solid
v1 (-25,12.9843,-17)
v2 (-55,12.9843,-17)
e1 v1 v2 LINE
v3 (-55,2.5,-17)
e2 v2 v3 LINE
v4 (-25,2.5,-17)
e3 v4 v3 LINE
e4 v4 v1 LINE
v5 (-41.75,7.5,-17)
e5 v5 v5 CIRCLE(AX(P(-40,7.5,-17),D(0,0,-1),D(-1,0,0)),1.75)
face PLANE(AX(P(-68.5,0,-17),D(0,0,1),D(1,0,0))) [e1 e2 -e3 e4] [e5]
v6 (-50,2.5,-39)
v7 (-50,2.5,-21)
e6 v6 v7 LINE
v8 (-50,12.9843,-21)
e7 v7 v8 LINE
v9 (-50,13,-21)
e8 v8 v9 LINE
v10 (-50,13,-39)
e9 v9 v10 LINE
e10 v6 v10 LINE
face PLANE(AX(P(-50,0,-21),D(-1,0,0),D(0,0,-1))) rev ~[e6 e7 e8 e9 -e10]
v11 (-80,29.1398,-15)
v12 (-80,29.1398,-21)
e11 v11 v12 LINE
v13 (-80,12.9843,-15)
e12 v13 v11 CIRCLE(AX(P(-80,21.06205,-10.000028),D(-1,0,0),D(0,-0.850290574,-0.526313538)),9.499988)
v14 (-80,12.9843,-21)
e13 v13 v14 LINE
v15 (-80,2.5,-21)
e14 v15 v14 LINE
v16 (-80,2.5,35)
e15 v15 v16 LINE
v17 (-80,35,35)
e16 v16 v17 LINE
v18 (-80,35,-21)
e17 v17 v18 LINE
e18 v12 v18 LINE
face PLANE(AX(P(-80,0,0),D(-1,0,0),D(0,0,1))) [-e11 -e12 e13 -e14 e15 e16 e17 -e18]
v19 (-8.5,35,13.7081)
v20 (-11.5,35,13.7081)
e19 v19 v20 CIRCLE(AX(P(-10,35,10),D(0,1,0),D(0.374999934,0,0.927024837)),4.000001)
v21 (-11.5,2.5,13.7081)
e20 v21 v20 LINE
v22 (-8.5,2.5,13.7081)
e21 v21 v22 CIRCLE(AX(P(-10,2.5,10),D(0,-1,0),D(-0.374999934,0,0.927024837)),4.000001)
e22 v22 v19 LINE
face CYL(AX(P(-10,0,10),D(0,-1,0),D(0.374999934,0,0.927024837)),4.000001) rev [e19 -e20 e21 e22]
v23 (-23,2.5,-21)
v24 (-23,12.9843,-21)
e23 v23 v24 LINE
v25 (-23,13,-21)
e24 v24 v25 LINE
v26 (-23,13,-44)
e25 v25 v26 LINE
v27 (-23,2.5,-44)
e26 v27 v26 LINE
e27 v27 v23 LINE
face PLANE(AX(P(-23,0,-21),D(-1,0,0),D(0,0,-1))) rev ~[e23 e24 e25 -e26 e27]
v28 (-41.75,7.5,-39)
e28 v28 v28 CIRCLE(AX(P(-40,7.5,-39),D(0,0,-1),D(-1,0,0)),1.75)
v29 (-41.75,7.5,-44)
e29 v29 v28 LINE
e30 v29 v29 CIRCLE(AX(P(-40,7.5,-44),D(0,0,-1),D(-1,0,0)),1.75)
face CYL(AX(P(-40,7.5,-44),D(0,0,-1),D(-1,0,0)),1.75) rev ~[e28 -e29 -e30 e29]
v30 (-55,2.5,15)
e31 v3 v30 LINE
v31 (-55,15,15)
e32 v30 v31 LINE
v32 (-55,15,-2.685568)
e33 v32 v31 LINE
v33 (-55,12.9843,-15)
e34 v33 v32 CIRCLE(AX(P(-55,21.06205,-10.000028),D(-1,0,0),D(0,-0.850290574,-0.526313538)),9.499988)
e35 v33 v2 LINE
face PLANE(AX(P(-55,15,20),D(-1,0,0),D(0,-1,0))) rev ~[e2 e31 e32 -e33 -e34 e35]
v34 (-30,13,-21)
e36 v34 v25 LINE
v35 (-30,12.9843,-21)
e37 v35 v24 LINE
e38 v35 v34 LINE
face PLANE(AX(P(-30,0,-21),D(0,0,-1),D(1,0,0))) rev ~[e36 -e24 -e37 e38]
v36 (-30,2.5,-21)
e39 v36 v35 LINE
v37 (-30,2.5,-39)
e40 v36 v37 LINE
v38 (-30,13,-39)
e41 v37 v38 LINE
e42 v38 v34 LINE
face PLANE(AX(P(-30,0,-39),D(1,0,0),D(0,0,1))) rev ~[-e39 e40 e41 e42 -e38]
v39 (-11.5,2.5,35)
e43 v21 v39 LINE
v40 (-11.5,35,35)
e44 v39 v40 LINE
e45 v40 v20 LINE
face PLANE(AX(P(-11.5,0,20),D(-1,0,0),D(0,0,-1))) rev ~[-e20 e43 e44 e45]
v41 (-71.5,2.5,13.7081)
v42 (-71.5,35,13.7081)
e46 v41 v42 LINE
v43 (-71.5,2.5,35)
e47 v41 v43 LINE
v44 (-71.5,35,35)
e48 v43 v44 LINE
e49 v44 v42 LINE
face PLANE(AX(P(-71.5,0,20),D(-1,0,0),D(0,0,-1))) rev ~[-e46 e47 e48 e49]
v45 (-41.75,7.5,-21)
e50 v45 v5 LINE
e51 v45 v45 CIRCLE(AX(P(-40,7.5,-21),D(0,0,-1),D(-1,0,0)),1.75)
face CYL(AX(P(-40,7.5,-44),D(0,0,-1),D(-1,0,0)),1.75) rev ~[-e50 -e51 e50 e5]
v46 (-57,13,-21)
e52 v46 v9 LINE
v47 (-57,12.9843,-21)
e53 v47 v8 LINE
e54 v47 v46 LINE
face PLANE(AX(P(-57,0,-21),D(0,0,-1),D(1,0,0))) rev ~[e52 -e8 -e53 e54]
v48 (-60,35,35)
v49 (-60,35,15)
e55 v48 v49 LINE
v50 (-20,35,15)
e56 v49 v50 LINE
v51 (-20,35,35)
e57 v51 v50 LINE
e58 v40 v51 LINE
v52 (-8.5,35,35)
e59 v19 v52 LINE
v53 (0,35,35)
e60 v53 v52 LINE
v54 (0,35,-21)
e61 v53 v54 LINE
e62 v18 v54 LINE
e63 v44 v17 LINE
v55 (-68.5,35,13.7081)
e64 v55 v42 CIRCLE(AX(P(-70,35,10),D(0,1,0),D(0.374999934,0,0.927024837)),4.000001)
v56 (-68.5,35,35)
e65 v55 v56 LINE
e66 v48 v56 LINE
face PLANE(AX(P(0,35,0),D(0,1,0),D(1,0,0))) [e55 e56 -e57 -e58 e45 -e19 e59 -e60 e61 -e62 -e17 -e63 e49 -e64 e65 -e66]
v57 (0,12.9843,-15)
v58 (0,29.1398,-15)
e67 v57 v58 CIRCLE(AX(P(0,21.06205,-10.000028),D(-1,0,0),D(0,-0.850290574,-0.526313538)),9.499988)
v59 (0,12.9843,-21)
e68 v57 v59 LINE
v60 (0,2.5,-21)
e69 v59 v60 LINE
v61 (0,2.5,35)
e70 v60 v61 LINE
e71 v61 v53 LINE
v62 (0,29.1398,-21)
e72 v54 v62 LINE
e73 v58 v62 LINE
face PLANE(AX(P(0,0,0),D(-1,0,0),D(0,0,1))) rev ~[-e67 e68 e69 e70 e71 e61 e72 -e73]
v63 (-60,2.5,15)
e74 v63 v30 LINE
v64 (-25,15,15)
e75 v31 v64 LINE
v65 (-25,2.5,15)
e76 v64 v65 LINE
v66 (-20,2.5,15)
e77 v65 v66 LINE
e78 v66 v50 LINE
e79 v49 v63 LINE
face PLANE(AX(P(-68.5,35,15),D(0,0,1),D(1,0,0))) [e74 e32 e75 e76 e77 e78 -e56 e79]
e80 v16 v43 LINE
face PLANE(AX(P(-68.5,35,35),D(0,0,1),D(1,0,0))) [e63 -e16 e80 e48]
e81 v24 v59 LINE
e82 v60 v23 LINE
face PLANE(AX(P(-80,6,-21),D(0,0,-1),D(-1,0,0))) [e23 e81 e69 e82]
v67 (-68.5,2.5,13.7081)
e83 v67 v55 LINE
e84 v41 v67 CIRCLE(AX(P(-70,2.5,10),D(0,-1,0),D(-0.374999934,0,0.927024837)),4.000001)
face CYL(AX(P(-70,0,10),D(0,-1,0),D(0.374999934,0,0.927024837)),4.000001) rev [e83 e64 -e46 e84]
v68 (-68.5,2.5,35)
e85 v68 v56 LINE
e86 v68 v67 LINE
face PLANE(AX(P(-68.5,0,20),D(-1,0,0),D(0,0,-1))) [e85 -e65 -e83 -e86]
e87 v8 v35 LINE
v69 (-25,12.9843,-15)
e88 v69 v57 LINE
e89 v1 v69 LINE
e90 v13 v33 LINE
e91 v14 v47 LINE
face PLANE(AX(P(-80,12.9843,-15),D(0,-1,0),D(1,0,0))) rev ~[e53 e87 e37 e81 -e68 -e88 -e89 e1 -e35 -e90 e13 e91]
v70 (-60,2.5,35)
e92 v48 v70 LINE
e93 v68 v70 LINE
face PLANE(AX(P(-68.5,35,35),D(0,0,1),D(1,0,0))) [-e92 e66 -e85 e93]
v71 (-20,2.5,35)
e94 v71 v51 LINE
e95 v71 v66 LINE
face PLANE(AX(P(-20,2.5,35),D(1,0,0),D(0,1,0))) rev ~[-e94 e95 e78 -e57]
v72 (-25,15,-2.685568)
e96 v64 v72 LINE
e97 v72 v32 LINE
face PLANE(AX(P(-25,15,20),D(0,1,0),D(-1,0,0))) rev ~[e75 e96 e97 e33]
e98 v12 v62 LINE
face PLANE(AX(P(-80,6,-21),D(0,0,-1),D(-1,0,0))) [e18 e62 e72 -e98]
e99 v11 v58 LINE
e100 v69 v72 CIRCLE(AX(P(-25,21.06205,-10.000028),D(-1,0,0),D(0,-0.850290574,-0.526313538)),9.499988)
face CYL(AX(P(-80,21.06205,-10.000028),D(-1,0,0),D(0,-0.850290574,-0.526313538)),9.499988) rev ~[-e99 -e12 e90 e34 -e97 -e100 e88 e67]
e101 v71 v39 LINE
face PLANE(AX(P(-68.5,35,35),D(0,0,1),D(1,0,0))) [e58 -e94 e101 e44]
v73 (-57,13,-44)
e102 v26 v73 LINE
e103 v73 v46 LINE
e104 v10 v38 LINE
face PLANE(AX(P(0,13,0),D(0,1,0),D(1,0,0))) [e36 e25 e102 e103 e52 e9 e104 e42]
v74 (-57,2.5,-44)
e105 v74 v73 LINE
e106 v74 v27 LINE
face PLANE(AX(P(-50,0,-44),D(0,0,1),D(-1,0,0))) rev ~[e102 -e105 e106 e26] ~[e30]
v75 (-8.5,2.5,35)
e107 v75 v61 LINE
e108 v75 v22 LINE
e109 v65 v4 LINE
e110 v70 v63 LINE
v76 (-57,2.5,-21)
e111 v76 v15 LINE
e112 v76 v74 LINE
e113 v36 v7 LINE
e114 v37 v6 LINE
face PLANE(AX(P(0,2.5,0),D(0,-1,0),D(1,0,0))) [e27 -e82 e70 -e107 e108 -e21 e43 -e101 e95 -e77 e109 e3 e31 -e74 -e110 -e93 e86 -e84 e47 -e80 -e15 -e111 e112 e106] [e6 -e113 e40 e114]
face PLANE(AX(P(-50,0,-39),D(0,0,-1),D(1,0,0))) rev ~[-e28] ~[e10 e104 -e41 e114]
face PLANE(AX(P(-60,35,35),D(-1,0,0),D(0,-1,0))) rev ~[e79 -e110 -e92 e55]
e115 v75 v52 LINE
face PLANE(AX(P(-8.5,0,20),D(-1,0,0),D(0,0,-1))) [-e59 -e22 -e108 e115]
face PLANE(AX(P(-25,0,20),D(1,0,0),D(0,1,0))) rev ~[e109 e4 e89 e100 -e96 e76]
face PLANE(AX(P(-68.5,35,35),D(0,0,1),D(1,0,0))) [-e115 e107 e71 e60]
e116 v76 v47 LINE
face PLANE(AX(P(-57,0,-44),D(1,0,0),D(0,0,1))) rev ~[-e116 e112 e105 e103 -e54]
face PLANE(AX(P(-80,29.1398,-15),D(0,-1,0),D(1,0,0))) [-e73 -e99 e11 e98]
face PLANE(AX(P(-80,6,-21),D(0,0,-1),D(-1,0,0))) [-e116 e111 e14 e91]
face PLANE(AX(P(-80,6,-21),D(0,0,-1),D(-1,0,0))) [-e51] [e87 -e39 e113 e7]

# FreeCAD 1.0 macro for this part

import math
import FreeCAD as App
import Part
import Sketcher
from FreeCAD import Vector
Q = App.Units.Quantity

doc = App.newDocument("Part")
params = doc.addObject("Spreadsheet::Sheet", "Params")
for row, (alias, value) in enumerate([
    ("sketch1_radius", "4 mm"),
    ("sketch1_width", "80 mm"),
    ("sketch1_height", "20 mm"),
    ("sketch1_width2", "1.5 mm"),
    ("pad1_length", "36 mm"),
    ("sketch2_radius", "9.5 mm"),
    ("sketch2_width", "30 mm"),
    ("sketch2_height", "15 mm"),
    ("pad2_length", "80 mm"),
    ("sketch3_radius", "4 mm"),
    ("sketch3_width", "57 mm"),
    ("sketch3_width2", "80 mm"),
    ("sketch3_height", "35 mm"),
    ("sketch3_width3", "8.5 mm"),
    ("pocket1_length", "1 mm"),
    ("sketch4_width", "80 mm"),
    ("pad3_length", "6 mm"),
    ("sketch5_width", "80 mm"),
    ("sketch5_height", "6 mm"),
    ("pad4_length", "20 mm"),
    ("sketch6_width", "30 mm"),
    ("sketch6_height", "15 mm"),
    ("pocket2_length", "37 mm"),
    ("sketch7_width", "7 mm"),
    ("sketch7_width2", "20 mm"),
    ("sketch7_height", "23 mm"),
    ("sketch7_height2", "18 mm"),
    ("pad5_length", "15.5 mm"),
    ("sketch8_diameter", "3.5 mm"),
    ("pocket3_length", "80 mm"),
    ("sketch9_radius", "4 mm"),
    ("sketch9_width", "30 mm"),
    ("sketch9_width2", "23 mm"),
    ("sketch9_width3", "34 mm"),
    ("sketch9_height", "41 mm"),
    ("pocket4_length", "2.5 mm"),
    ("sketch10_width", "30 mm"),
    ("sketch10_width2", "57 mm"),
    ("sketch10_width3", "8.5 mm"),
    ("sketch10_height", "32.5 mm"),
    ("sketch10_height2", "12.5 mm"),
    ("pad6_length", "15 mm"),
    ("sketch11_width", "40 mm"),
    ("sketch11_height", "32.5 mm"),
    ("pocket5_length", "20 mm"),
    ("sketch12_width", "7 mm"),
    ("sketch12_width2", "34 mm"),
    ("sketch12_height", "23 mm"),
    ("sketch12_height2", "18 mm"),
    ("pocket6_length", "2.5 mm"),
], start=1):
    params.set(f"A{row}", alias)
    params.set(f"B{row}", "=" + value)
    params.setAlias(f"B{row}", alias)

body = doc.addObject("PartDesign::Body", "Body")

# Sketch on XZ plane
sketch1 = body.newObject("Sketcher::SketchObject", "Sketch")
sketch1.AttachmentSupport = (doc.getObject("XZ_Plane"), [""])
sketch1.MapMode = "FlatFace"
sketch1.addGeometry([
    Part.ArcOfCircle(Part.Circle(Vector(-10, 10, 0), Vector(0, 0, 1), 4), math.radians(112), math.radians(428)),  # 0
    Part.LineSegment(Vector(-8.5, 13.7, 0), Vector(-8.5, 20, 0)),  # 1
    Part.LineSegment(Vector(-8.5, 20, 0), Vector(0, 20, 0)),  # 2
    Part.LineSegment(Vector(0, 20, 0), Vector(0, 0, 0)),  # 3
    Part.LineSegment(Vector(0, 0, 0), Vector(-80, 0, 0)),  # 4
    Part.LineSegment(Vector(-80, 0, 0), Vector(-80, 20, 0)),  # 5
    Part.LineSegment(Vector(-80, 20, 0), Vector(-71.5, 20, 0)),  # 6
    Part.LineSegment(Vector(-71.5, 20, 0), Vector(-71.5, 13.7, 0)),  # 7
    Part.ArcOfCircle(Part.Circle(Vector(-70, 10, 0), Vector(0, 0, 1), 4), math.radians(112), math.radians(428)),  # 8
    Part.LineSegment(Vector(-68.5, 13.7, 0), Vector(-68.5, 20, 0)),  # 9
    Part.LineSegment(Vector(-68.5, 20, 0), Vector(-11.5, 20, 0)),  # 10
    Part.LineSegment(Vector(-11.5, 20, 0), Vector(-11.5, 13.7, 0)),  # 11
], False)
sketch1.addConstraint([
    Sketcher.Constraint("Coincident", 0, 2, 1, 1),
    Sketcher.Constraint("Coincident", 1, 2, 2, 1),
    Sketcher.Constraint("Coincident", 2, 2, 3, 1),
    Sketcher.Constraint("Coincident", 3, 2, 4, 1),
    Sketcher.Constraint("Coincident", 4, 2, 5, 1),
    Sketcher.Constraint("Coincident", 5, 2, 6, 1),
    Sketcher.Constraint("Coincident", 6, 2, 7, 1),
    Sketcher.Constraint("Coincident", 7, 2, 8, 1),
    Sketcher.Constraint("Coincident", 8, 2, 9, 1),
    Sketcher.Constraint("Coincident", 9, 2, 10, 1),
    Sketcher.Constraint("Coincident", 10, 2, 11, 1),
    Sketcher.Constraint("Coincident", 11, 2, 0, 1),
    Sketcher.Constraint("Vertical", 1),
    Sketcher.Constraint("Horizontal", 2),
    Sketcher.Constraint("Vertical", 3),
    Sketcher.Constraint("Horizontal", 4),
    Sketcher.Constraint("Vertical", 5),
    Sketcher.Constraint("Horizontal", 6),
    Sketcher.Constraint("Vertical", 7),
    Sketcher.Constraint("Vertical", 9),
    Sketcher.Constraint("Horizontal", 10),
    Sketcher.Constraint("Vertical", 11),
    Sketcher.Constraint("Coincident", 3, 2, -1, 1),
    Sketcher.Constraint("Equal", 0, 8),
    Sketcher.Constraint("Horizontal", 0, 3, 8, 3),
    Sketcher.Constraint("Horizontal", 2, 2, 5, 2),
    Sketcher.Constraint("Horizontal", 0, 2, 7, 2),
    Sketcher.Constraint("Horizontal", 7, 2, 8, 2),
    Sketcher.Constraint("Horizontal", 6, 2, 9, 2),
    Sketcher.Constraint("Horizontal", 8, 2, 11, 2),
    Sketcher.Constraint("Equal", 2, 6),
    Sketcher.Constraint("Radius", 0, Q("4 mm")),
    Sketcher.Constraint("DistanceX", 4, 2, 4, 1, Q("80 mm")),
    Sketcher.Constraint("DistanceY", 3, 2, 3, 1, Q("20 mm")),
    Sketcher.Constraint("DistanceX", 0, 3, -1, 1, Q("10 mm")),
    Sketcher.Constraint("DistanceY", -1, 1, 0, 3, Q("10 mm")),
    Sketcher.Constraint("DistanceX", 0, 3, 0, 2, Q("1.5 mm")),
])
sketch1.setExpression("Constraints[31]", "Params.sketch1_radius")
sketch1.setExpression("Constraints[32]", "Params.sketch1_width")
sketch1.setExpression("Constraints[33]", "Params.sketch1_height")
sketch1.setExpression("Constraints[36]", "Params.sketch1_width2")
pad1 = body.newObject("PartDesign::Pad", "Pad")
pad1.Profile = sketch1
pad1.setExpression("Length", "Params.pad1_length")
pad1.Reversed = True

# Sketch on YZ plane
sketch2 = body.newObject("Sketcher::SketchObject", "Sketch001")
sketch2.AttachmentSupport = (doc.getObject("YZ_Plane"), [""])
sketch2.MapMode = "FlatFace"
sketch2.AttachmentOffset = App.Placement(Vector(0, 0, -80), App.Rotation())
sketch2.addGeometry([
    Part.LineSegment(Vector(6, -15, 0), Vector(6, 0, 0)),  # 0
    Part.LineSegment(Vector(6, 0, 0), Vector(36, 0, 0)),  # 1
    Part.LineSegment(Vector(36, 0, 0), Vector(36, -15, 0)),  # 2
    Part.LineSegment(Vector(36, -15, 0), Vector(29, -15, 0)),  # 3
    Part.ArcOfCircle(Part.Circle(Vector(21, -10, 0), Vector(0, 0, 1), 9), math.radians(-32), math.radians(212)),  # 4
    Part.LineSegment(Vector(13, -15, 0), Vector(6, -15, 0)),  # 5
], False)
sketch2.addConstraint([
    Sketcher.Constraint("Coincident", 0, 2, 1, 1),
    Sketcher.Constraint("Coincident", 1, 2, 2, 1),
    Sketcher.Constraint("Coincident", 2, 2, 3, 1),
    Sketcher.Constraint("Coincident", 3, 2, 4, 1),
    Sketcher.Constraint("Coincident", 4, 2, 5, 1),
    Sketcher.Constraint("Coincident", 5, 2, 0, 1),
    Sketcher.Constraint("Vertical", 0),
    Sketcher.Constraint("Horizontal", 1),
    Sketcher.Constraint("Vertical", 2),
    Sketcher.Constraint("Horizontal", 3),
    Sketcher.Constraint("Horizontal", 5),
    Sketcher.Constraint("PointOnObject", 0, 2, -1),
    Sketcher.Constraint("Horizontal", 3, 2, 4, 2),
    Sketcher.Constraint("Radius", 4, Q("9.5 mm")),
    Sketcher.Constraint("DistanceX", 1, 1, 1, 2, Q("30 mm")),
    Sketcher.Constraint("DistanceY", 0, 1, 0, 2, Q("15 mm")),
    Sketcher.Constraint("DistanceY", 2, 2, 4, 3, Q("5 mm")),
    Sketcher.Constraint("DistanceX", -1, 1, 0, 2, Q("6 mm")),
    Sketcher.Constraint("DistanceX", 3, 2, 3, 1, Q("6.8602 mm")),
])
sketch2.setExpression("Constraints[13]", "Params.sketch2_radius")
sketch2.setExpression("Constraints[14]", "Params.sketch2_width")
sketch2.setExpression("Constraints[15]", "Params.sketch2_height")
pad2 = body.newObject("PartDesign::Pad", "Pad001")
pad2.Profile = sketch2
pad2.setExpression("Length", "Params.pad2_length")

# Sketch on XZ plane
sketch3 = body.newObject("Sketcher::SketchObject", "Sketch002")
sketch3.AttachmentSupport = (doc.getObject("XZ_Plane"), [""])
sketch3.MapMode = "FlatFace"
sketch3.AttachmentOffset = App.Placement(Vector(0, 0, -36), App.Rotation())
sketch3.addGeometry([
    Part.LineSegment(Vector(-80, -15, 0), Vector(-80, 20, 0)),  # 0
    Part.LineSegment(Vector(-80, 20, 0), Vector(-71.5, 20, 0)),  # 1
    Part.LineSegment(Vector(-71.5, 20, 0), Vector(-71.5, 13.7, 0)),  # 2
    Part.ArcOfCircle(Part.Circle(Vector(-70, 10, 0), Vector(0, 0, 1), 4), math.radians(112), math.radians(428)),  # 3
    Part.LineSegment(Vector(-68.5, 13.7, 0), Vector(-68.5, 20, 0)),  # 4
    Part.LineSegment(Vector(-68.5, 20, 0), Vector(-11.5, 20, 0)),  # 5
    Part.LineSegment(Vector(-11.5, 20, 0), Vector(-11.5, 13.7, 0)),  # 6
    Part.ArcOfCircle(Part.Circle(Vector(-10, 10, 0), Vector(0, 0, 1), 4), math.radians(112), math.radians(428)),  # 7
    Part.LineSegment(Vector(-8.5, 13.7, 0), Vector(-8.5, 20, 0)),  # 8
    Part.LineSegment(Vector(-8.5, 20, 0), Vector(0, 20, 0)),  # 9
    Part.LineSegment(Vector(0, 20, 0), Vector(0, -15, 0)),  # 10
    Part.LineSegment(Vector(0, -15, 0), Vector(-80, -15, 0)),  # 11
], False)
sketch3.addConstraint([
    Sketcher.Constraint("Coincident", 0, 2, 1, 1),
    Sketcher.Constraint("Coincident", 1, 2, 2, 1),
    Sketcher.Constraint("Coincident", 2, 2, 3, 1),
    Sketcher.Constraint("Coincident", 3, 2, 4, 1),
    Sketcher.Constraint("Coincident", 4, 2, 5, 1),
    Sketcher.Constraint("Coincident", 5, 2, 6, 1),
    Sketcher.Constraint("Coincident", 6, 2, 7, 1),
    Sketcher.Constraint("Coincident", 7, 2, 8, 1),
    Sketcher.Constraint("Coincident", 8, 2, 9, 1),
    Sketcher.Constraint("Coincident", 9, 2, 10, 1),
    Sketcher.Constraint("Coincident", 10, 2, 11, 1),
    Sketcher.Constraint("Coincident", 11, 2, 0, 1),
    Sketcher.Constraint("Vertical", 0),
    Sketcher.Constraint("Horizontal", 1),
    Sketcher.Constraint("Vertical", 2),
    Sketcher.Constraint("Vertical", 4),
    Sketcher.Constraint("Horizontal", 5),
    Sketcher.Constraint("Vertical", 6),
    Sketcher.Constraint("Vertical", 8),
    Sketcher.Constraint("Horizontal", 9),
    Sketcher.Constraint("Vertical", 10),
    Sketcher.Constraint("Horizontal", 11),
    Sketcher.Constraint("Equal", 3, 7),
    Sketcher.Constraint("PointOnObject", 9, 2, -2),
    Sketcher.Constraint("Horizontal", 3, 3, 7, 3),
    Sketcher.Constraint("Horizontal", 2, 2, 3, 2),
    Sketcher.Constraint("Horizontal", 1, 2, 4, 2),
    Sketcher.Constraint("Horizontal", 3, 2, 6, 2),
    Sketcher.Constraint("Horizontal", 6, 2, 7, 2),
    Sketcher.Constraint("Horizontal", 5, 2, 8, 2),
    Sketcher.Constraint("Equal", 1, 9),
    Sketcher.Constraint("Radius", 3, Q("4 mm")),
    Sketcher.Constraint("DistanceX", 5, 1, 5, 2, Q("57 mm")),
    Sketcher.Constraint("DistanceX", 11, 2, 11, 1, Q("80 mm")),
    Sketcher.Constraint("DistanceY", 0, 1, 0, 2, Q("35 mm")),
    Sketcher.Constraint("DistanceX", 1, 1, 1, 2, Q("8.5 mm")),
    Sketcher.Constraint("DistanceY", -1, 1, 3, 3, Q("10 mm")),
    Sketcher.Constraint("DistanceY", -1, 1, 0, 2, Q("20 mm")),
])
sketch3.setExpression("Constraints[31]", "Params.sketch3_radius")
sketch3.setExpression("Constraints[32]", "Params.sketch3_width")
sketch3.setExpression("Constraints[33]", "Params.sketch3_width2")
sketch3.setExpression("Constraints[34]", "Params.sketch3_height")
sketch3.setExpression("Constraints[35]", "Params.sketch3_width3")
pocket1 = body.newObject("PartDesign::Pocket", "Pocket")
pocket1.Profile = sketch3
pocket1.setExpression("Length", "Params.pocket1_length")
pocket1.Reversed = True

# Sketch on XY plane
sketch4 = body.newObject("Sketcher::SketchObject", "Sketch003")
sketch4.AttachmentSupport = (doc.getObject("XY_Plane"), [""])
sketch4.MapMode = "FlatFace"
sketch4.AttachmentOffset = App.Placement(Vector(0, 0, -15), App.Rotation())
sketch4.addGeometry([
    Part.LineSegment(Vector(0, 13, 0), Vector(0, 0, 0)),  # 0
    Part.LineSegment(Vector(0, 0, 0), Vector(-80, 0, 0)),  # 1
    Part.LineSegment(Vector(-80, 0, 0), Vector(-80, 13, 0)),  # 2
    Part.LineSegment(Vector(-80, 13, 0), Vector(0, 13, 0)),  # 3
    Part.LineSegment(Vector(0, 29, 0), Vector(-80, 29, 0)),  # 4
    Part.LineSegment(Vector(-80, 29, 0), Vector(-80, 35, 0)),  # 5
    Part.LineSegment(Vector(-80, 35, 0), Vector(0, 35, 0)),  # 6
    Part.LineSegment(Vector(0, 35, 0), Vector(0, 29, 0)),  # 7
], False)
sketch4.addConstraint([
    Sketcher.Constraint("Coincident", 0, 2, 1, 1),
    Sketcher.Constraint("Coincident", 1, 2, 2, 1),
    Sketcher.Constraint("Coincident", 2, 2, 3, 1),
    Sketcher.Constraint("Coincident", 3, 2, 0, 1),
    Sketcher.Constraint("Coincident", 4, 2, 5, 1),
    Sketcher.Constraint("Coincident", 5, 2, 6, 1),
    Sketcher.Constraint("Coincident", 6, 2, 7, 1),
    Sketcher.Constraint("Coincident", 7, 2, 4, 1),
    Sketcher.Constraint("Vertical", 0),
    Sketcher.Constraint("Horizontal", 1),
    Sketcher.Constraint("Vertical", 2),
    Sketcher.Constraint("Horizontal", 3),
    Sketcher.Constraint("Horizontal", 4),
    Sketcher.Constraint("Vertical", 5),
    Sketcher.Constraint("Horizontal", 6),
    Sketcher.Constraint("Vertical", 7),
    Sketcher.Constraint("Coincident", 0, 2, -1, 1),
    Sketcher.Constraint("PointOnObject", 6, 2, -2),
    Sketcher.Constraint("Vertical", 2, 2, 4, 2),
    Sketcher.Constraint("DistanceX", 1, 2, 1, 1, Q("80 mm")),
    Sketcher.Constraint("DistanceY", -1, 1, 5, 2, Q("35 mm")),
    Sketcher.Constraint("DistanceY", 0, 2, 0, 1, Q("12.9843 mm")),
    Sketcher.Constraint("DistanceY", 5, 1, 5, 2, Q("5.8602 mm")),
])
sketch4.setExpression("Constraints[19]", "Params.sketch4_width")
pad3 = body.newObject("PartDesign::Pad", "Pad002")
pad3.Profile = sketch4
pad3.setExpression("Length", "Params.pad3_length")
pad3.Reversed = True

# Sketch on XY plane
sketch5 = body.newObject("Sketcher::SketchObject", "Sketch004")
sketch5.AttachmentSupport = (doc.getObject("XY_Plane"), [""])
sketch5.MapMode = "FlatFace"
sketch5.addGeometry([
    Part.LineSegment(Vector(-80, 0, 0), Vector(-80, 6, 0)),
    Part.LineSegment(Vector(-80, 6, 0), Vector(0, 6, 0)),
    Part.LineSegment(Vector(0, 6, 0), Vector(0, 0, 0)),
    Part.LineSegment(Vector(0, 0, 0), Vector(-80, 0, 0)),
], False)
sketch5.addConstraint([
    Sketcher.Constraint("Coincident", 0, 2, 1, 1),
    Sketcher.Constraint("Coincident", 1, 2, 2, 1),
    Sketcher.Constraint("Coincident", 2, 2, 3, 1),
    Sketcher.Constraint("Coincident", 3, 2, 0, 1),
    Sketcher.Constraint("Vertical", 0),
    Sketcher.Constraint("Horizontal", 1),
    Sketcher.Constraint("Vertical", 2),
    Sketcher.Constraint("Horizontal", 3),
    Sketcher.Constraint("Coincident", 2, 2, -1, 1),
    Sketcher.Constraint("DistanceX", 1, 1, 1, 2, Q("80 mm")),
    Sketcher.Constraint("DistanceY", 0, 1, 0, 2, Q("6 mm")),
])
sketch5.setExpression("Constraints[9]", "Params.sketch5_width")
sketch5.setExpression("Constraints[10]", "Params.sketch5_height")
pad4 = body.newObject("PartDesign::Pad", "Pad003")
pad4.Profile = sketch5
pad4.setExpression("Length", "Params.pad4_length")
pad4.Reversed = True

# Sketch on XY plane
sketch6 = body.newObject("Sketcher::SketchObject", "Sketch005")
sketch6.AttachmentSupport = (doc.getObject("XY_Plane"), [""])
sketch6.MapMode = "FlatFace"
sketch6.AttachmentOffset = App.Placement(Vector(0, 0, 20), App.Rotation())
sketch6.addGeometry([
    Part.LineSegment(Vector(-55, 15, 0), Vector(-55, 0, 0)),
    Part.LineSegment(Vector(-55, 0, 0), Vector(-25, 0, 0)),
    Part.LineSegment(Vector(-25, 0, 0), Vector(-25, 15, 0)),
    Part.LineSegment(Vector(-25, 15, 0), Vector(-55, 15, 0)),
], False)
sketch6.addConstraint([
    Sketcher.Constraint("Coincident", 0, 2, 1, 1),
    Sketcher.Constraint("Coincident", 1, 2, 2, 1),
    Sketcher.Constraint("Coincident", 2, 2, 3, 1),
    Sketcher.Constraint("Coincident", 3, 2, 0, 1),
    Sketcher.Constraint("Vertical", 0),
    Sketcher.Constraint("Horizontal", 1),
    Sketcher.Constraint("Vertical", 2),
    Sketcher.Constraint("Horizontal", 3),
    Sketcher.Constraint("PointOnObject", 0, 2, -1),
    Sketcher.Constraint("DistanceX", 1, 1, 1, 2, Q("30 mm")),
    Sketcher.Constraint("DistanceY", 0, 2, 0, 1, Q("15 mm")),
    Sketcher.Constraint("DistanceX", 1, 2, -1, 1, Q("25 mm")),
])
sketch6.setExpression("Constraints[9]", "Params.sketch6_width")
sketch6.setExpression("Constraints[10]", "Params.sketch6_height")
pocket2 = body.newObject("PartDesign::Pocket", "Pocket001")
pocket2.Profile = sketch6
pocket2.setExpression("Length", "Params.pocket2_length")

# Sketch on XZ plane
sketch7 = body.newObject("Sketcher::SketchObject", "Sketch006")
sketch7.AttachmentSupport = (doc.getObject("XZ_Plane"), [""])
sketch7.MapMode = "FlatFace"
sketch7.addGeometry([
    Part.LineSegment(Vector(-50, -21, 0), Vector(-57, -21, 0)),  # 0
    Part.LineSegment(Vector(-57, -21, 0), Vector(-57, -44, 0)),  # 1
    Part.LineSegment(Vector(-57, -44, 0), Vector(-23, -44, 0)),  # 2
    Part.LineSegment(Vector(-23, -44, 0), Vector(-23, -21, 0)),  # 3
    Part.LineSegment(Vector(-23, -21, 0), Vector(-30, -21, 0)),  # 4
    Part.LineSegment(Vector(-30, -21, 0), Vector(-30, -39, 0)),  # 5
    Part.LineSegment(Vector(-30, -39, 0), Vector(-50, -39, 0)),  # 6
    Part.LineSegment(Vector(-50, -39, 0), Vector(-50, -21, 0)),  # 7
], False)
sketch7.addConstraint([
    Sketcher.Constraint("Coincident", 0, 2, 1, 1),
    Sketcher.Constraint("Coincident", 1, 2, 2, 1),
    Sketcher.Constraint("Coincident", 2, 2, 3, 1),
    Sketcher.Constraint("Coincident", 3, 2, 4, 1),
    Sketcher.Constraint("Coincident", 4, 2, 5, 1),
    Sketcher.Constraint("Coincident", 5, 2, 6, 1),
    Sketcher.Constraint("Coincident", 6, 2, 7, 1),
    Sketcher.Constraint("Coincident", 7, 2, 0, 1),
    Sketcher.Constraint("Horizontal", 0),
    Sketcher.Constraint("Vertical", 1),
    Sketcher.Constraint("Horizontal", 2),
    Sketcher.Constraint("Vertical", 3),
    Sketcher.Constraint("Horizontal", 4),
    Sketcher.Constraint("Vertical", 5),
    Sketcher.Constraint("Horizontal", 6),
    Sketcher.Constraint("Vertical", 7),
    Sketcher.Constraint("Horizontal", 0, 2, 3, 2),
    Sketcher.Constraint("Equal", 0, 4),
    Sketcher.Constraint("DistanceX", 0, 2, 0, 1, Q("7 mm")),
    Sketcher.Constraint("DistanceX", 6, 2, 6, 1, Q("20 mm")),
    Sketcher.Constraint("DistanceY", 1, 2, 1, 1, Q("23 mm")),
    Sketcher.Constraint("DistanceY", 5, 2, 5, 1, Q("18 mm")),
    Sketcher.Constraint("DistanceX", 2, 2, -1, 1, Q("23 mm")),
    Sketcher.Constraint("DistanceY", 0, 2, -1, 1, Q("21 mm")),
])
sketch7.setExpression("Constraints[18]", "Params.sketch7_width")
sketch7.setExpression("Constraints[19]", "Params.sketch7_width2")
sketch7.setExpression("Constraints[20]", "Params.sketch7_height")
sketch7.setExpression("Constraints[21]", "Params.sketch7_height2")
pad5 = body.newObject("PartDesign::Pad", "Pad004")
pad5.Profile = sketch7
pad5.setExpression("Length", "Params.pad5_length")
pad5.Reversed = True

# Sketch on XY plane
sketch8 = body.newObject("Sketcher::SketchObject", "Sketch007")
sketch8.AttachmentSupport = (doc.getObject("XY_Plane"), [""])
sketch8.MapMode = "FlatFace"
sketch8.AttachmentOffset = App.Placement(Vector(0, 0, -44), App.Rotation())
sketch8.addGeometry(Part.Circle(Vector(-40, 7.5, 0), Vector(0, 0, 1), 1.8), False)
sketch8.addConstraint([
    Sketcher.Constraint("Diameter", 0, Q("3.5 mm")),
    Sketcher.Constraint("DistanceX", 0, 3, -1, 1, Q("40 mm")),
    Sketcher.Constraint("DistanceY", -1, 1, 0, 3, Q("7.5 mm")),
])
sketch8.setExpression("Constraints[0]", "Params.sketch8_diameter")
pocket3 = body.newObject("PartDesign::Pocket", "Pocket002")
pocket3.Profile = sketch8
pocket3.setExpression("Length", "Params.pocket3_length")
pocket3.Reversed = True

# Sketch on XZ plane
sketch9 = body.newObject("Sketcher::SketchObject", "Sketch008")
sketch9.AttachmentSupport = (doc.getObject("XZ_Plane"), [""])
sketch9.MapMode = "FlatFace"
sketch9.addGeometry([
    Part.LineSegment(Vector(0, -21, 0), Vector(0, 20, 0)),  # 0
    Part.LineSegment(Vector(0, 20, 0), Vector(-8.5, 20, 0)),  # 1
    Part.LineSegment(Vector(-8.5, 20, 0), Vector(-8.5, 13.7, 0)),  # 2
    Part.ArcOfCircle(Part.Circle(Vector(-10, 10, 0), Vector(0, 0, 1), 4), math.radians(112), math.radians(428)),  # 3
    Part.LineSegment(Vector(-11.5, 13.7, 0), Vector(-11.5, 20, 0)),  # 4
    Part.LineSegment(Vector(-11.5, 20, 0), Vector(-25, 20, 0)),  # 5
    Part.LineSegment(Vector(-25, 20, 0), Vector(-25, -17, 0)),  # 6
    Part.LineSegment(Vector(-25, -17, 0), Vector(-55, -17, 0)),  # 7
    Part.LineSegment(Vector(-55, -17, 0), Vector(-55, 20, 0)),  # 8
    Part.LineSegment(Vector(-55, 20, 0), Vector(-68.5, 20, 0)),  # 9
    Part.LineSegment(Vector(-68.5, 20, 0), Vector(-68.5, 13.7, 0)),  # 10
    Part.ArcOfCircle(Part.Circle(Vector(-70, 10, 0), Vector(0, 0, 1), 4), math.radians(112), math.radians(428)),  # 11
    Part.LineSegment(Vector(-71.5, 13.7, 0), Vector(-71.5, 20, 0)),  # 12
    Part.LineSegment(Vector(-71.5, 20, 0), Vector(-80, 20, 0)),  # 13
    Part.LineSegment(Vector(-80, 20, 0), Vector(-80, -21, 0)),  # 14
    Part.LineSegment(Vector(-80, -21, 0), Vector(-57, -21, 0)),  # 15
    Part.LineSegment(Vector(-57, -21, 0), Vector(-57, -44, 0)),  # 16
    Part.LineSegment(Vector(-57, -44, 0), Vector(-23, -44, 0)),  # 17
    Part.LineSegment(Vector(-23, -44, 0), Vector(-23, -21, 0)),  # 18
    Part.LineSegment(Vector(-23, -21, 0), Vector(0, -21, 0)),  # 19
], False)
sketch9.addConstraint([
    Sketcher.Constraint("Coincident", 0, 2, 1, 1),
    Sketcher.Constraint("Coincident", 1, 2, 2, 1),
    Sketcher.Constraint("Coincident", 2, 2, 3, 2),
    Sketcher.Constraint("Coincident", 3, 1, 4, 1),
    Sketcher.Constraint("Coincident", 4, 2, 5, 1),
    Sketcher.Constraint("Coincident", 5, 2, 6, 1),
    Sketcher.Constraint("Coincident", 6, 2, 7, 1),
    Sketcher.Constraint("Coincident", 7, 2, 8, 1),
    Sketcher.Constraint("Coincident", 8, 2, 9, 1),
    Sketcher.Constraint("Coincident", 9, 2, 10, 1),
    Sketcher.Constraint("Coincident", 10, 2, 11, 2),
    Sketcher.Constraint("Coincident", 11, 1, 12, 1),
    Sketcher.Constraint("Coincident", 12, 2, 13, 1),
    Sketcher.Constraint("Coincident", 13, 2, 14, 1),
    Sketcher.Constraint("Coincident", 14, 2, 15, 1),
    Sketcher.Constraint("Coincident", 15, 2, 16, 1),
    Sketcher.Constraint("Coincident", 16, 2, 17, 1),
    Sketcher.Constraint("Coincident", 17, 2, 18, 1),
    Sketcher.Constraint("Coincident", 18, 2, 19, 1),
    Sketcher.Constraint("Coincident", 19, 2, 0, 1),
    Sketcher.Constraint("Vertical", 0),
    Sketcher.Constraint("Horizontal", 1),
    Sketcher.Constraint("Vertical", 2),
    Sketcher.Constraint("Vertical", 4),
    Sketcher.Constraint("Horizontal", 5),
    Sketcher.Constraint("Vertical", 6),
    Sketcher.Constraint("Horizontal", 7),
    Sketcher.Constraint("Vertical", 8),
    Sketcher.Constraint("Horizontal", 9),
    Sketcher.Constraint("Vertical", 10),
    Sketcher.Constraint("Vertical", 12),
    Sketcher.Constraint("Horizontal", 13),
    Sketcher.Constraint("Vertical", 14),
    Sketcher.Constraint("Horizontal", 15),
    Sketcher.Constraint("Vertical", 16),
    Sketcher.Constraint("Horizontal", 17),
    Sketcher.Constraint("Vertical", 18),
    Sketcher.Constraint("Horizontal", 19),
    Sketcher.Constraint("Equal", 3, 11),
    Sketcher.Constraint("PointOnObject", 0, 2, -2),
    Sketcher.Constraint("Horizontal", 3, 3, 11, 3),
    Sketcher.Constraint("Horizontal", 2, 2, 3, 1),
    Sketcher.Constraint("Horizontal", 1, 2, 4, 2),
    Sketcher.Constraint("Horizontal", 5, 2, 8, 2),
    Sketcher.Constraint("Horizontal", 3, 1, 10, 2),
    Sketcher.Constraint("Horizontal", 10, 2, 11, 1),
    Sketcher.Constraint("Horizontal", 9, 2, 12, 2),
    Sketcher.Constraint("Horizontal", 15, 2, 18, 2),
    Sketcher.Constraint("Equal", 5, 9),
    Sketcher.Constraint("Equal", 1, 13),
    Sketcher.Constraint("Equal", 15, 19),
    Sketcher.Constraint("Equal", 19, 16),
    Sketcher.Constraint("Radius", 3, Q("4 mm")),
    Sketcher.Constraint("DistanceX", 7, 2, 7, 1, Q("30 mm")),
    Sketcher.Constraint("DistanceX", 15, 1, 15, 2, Q("23 mm")),
    Sketcher.Constraint("DistanceX", 17, 1, 17, 2, Q("34 mm")),
    Sketcher.Constraint("DistanceY", 0, 1, 0, 2, Q("41 mm")),
    Sketcher.Constraint("DistanceY", 6, 2, 6, 1, Q("37 mm")),
    Sketcher.Constraint("DistanceX", 1, 2, 1, 1, Q("8.5 mm")),
    Sketcher.Constraint("DistanceX", 5, 2, 5, 1, Q("13.5 mm")),
    Sketcher.Constraint("DistanceY", -1, 1, 3, 3, Q("10 mm")),
    Sketcher.Constraint("DistanceY", -1, 1, 0, 2, Q("20 mm")),
])
sketch9.setExpression("Constraints[52]", "Params.sketch9_radius")
sketch9.setExpression("Constraints[53]", "Params.sketch9_width")
sketch9.setExpression("Constraints[54]", "Params.sketch9_width2")
sketch9.setExpression("Constraints[55]", "Params.sketch9_width3")
sketch9.setExpression("Constraints[56]", "Params.sketch9_height")
pocket4 = body.newObject("PartDesign::Pocket", "Pocket003")
pocket4.Profile = sketch9
pocket4.setExpression("Length", "Params.pocket4_length")

# Sketch on XY plane
sketch10 = body.newObject("Sketcher::SketchObject", "Sketch009")
sketch10.AttachmentSupport = (doc.getObject("XY_Plane"), [""])
sketch10.MapMode = "FlatFace"
sketch10.AttachmentOffset = App.Placement(Vector(0, 0, 20), App.Rotation())
sketch10.addGeometry([
    Part.LineSegment(Vector(-68, 35, 0), Vector(-68, 2, 0)),  # 0
    Part.LineSegment(Vector(-68, 2, 0), Vector(-55, 2, 0)),  # 1
    Part.LineSegment(Vector(-55, 2, 0), Vector(-55, 15, 0)),  # 2
    Part.LineSegment(Vector(-55, 15, 0), Vector(-25, 15, 0)),  # 3
    Part.LineSegment(Vector(-25, 15, 0), Vector(-25, 2, 0)),  # 4
    Part.LineSegment(Vector(-25, 2, 0), Vector(-12, 2, 0)),  # 5
    Part.LineSegment(Vector(-12, 2, 0), Vector(-12, 35, 0)),  # 6
    Part.LineSegment(Vector(-12, 35, 0), Vector(-68, 35, 0)),  # 7
    Part.LineSegment(Vector(-8, 35, 0), Vector(-8, 2, 0)),  # 8
    Part.LineSegment(Vector(-8, 2, 0), Vector(0, 2, 0)),  # 9
    Part.LineSegment(Vector(0, 2, 0), Vector(0, 35, 0)),  # 10
    Part.LineSegment(Vector(0, 35, 0), Vector(-8, 35, 0)),  # 11
    Part.LineSegment(Vector(-80, 35, 0), Vector(-80, 2, 0)),  # 12
    Part.LineSegment(Vector(-80, 2, 0), Vector(-72, 2, 0)),  # 13
    Part.LineSegment(Vector(-72, 2, 0), Vector(-72, 35, 0)),  # 14
    Part.LineSegment(Vector(-72, 35, 0), Vector(-80, 35, 0)),  # 15
], False)
sketch10.addConstraint([
    Sketcher.Constraint("Coincident", 0, 2, 1, 1),
    Sketcher.Constraint("Coincident", 1, 2, 2, 1),
    Sketcher.Constraint("Coincident", 2, 2, 3, 1),
    Sketcher.Constraint("Coincident", 3, 2, 4, 1),
    Sketcher.Constraint("Coincident", 4, 2, 5, 1),
    Sketcher.Constraint("Coincident", 5, 2, 6, 1),
    Sketcher.Constraint("Coincident", 6, 2, 7, 1),
    Sketcher.Constraint("Coincident", 7, 2, 0, 1),
    Sketcher.Constraint("Coincident", 8, 2, 9, 1),
    Sketcher.Constraint("Coincident", 9, 2, 10, 1),
    Sketcher.Constraint("Coincident", 10, 2, 11, 1),
    Sketcher.Constraint("Coincident", 11, 2, 8, 1),
    Sketcher.Constraint("Coincident", 12, 2, 13, 1),
    Sketcher.Constraint("Coincident", 13, 2, 14, 1),
    Sketcher.Constraint("Coincident", 14, 2, 15, 1),
    Sketcher.Constraint("Coincident", 15, 2, 12, 1),
    Sketcher.Constraint("Vertical", 0),
    Sketcher.Constraint("Horizontal", 1),
    Sketcher.Constraint("Vertical", 2),
    Sketcher.Constraint("Horizontal", 3),
    Sketcher.Constraint("Vertical", 4),
    Sketcher.Constraint("Horizontal", 5),
    Sketcher.Constraint("Vertical", 6),
    Sketcher.Constraint("Horizontal", 7),
    Sketcher.Constraint("Vertical", 8),
    Sketcher.Constraint("Horizontal", 9),
    Sketcher.Constraint("Vertical", 10),
    Sketcher.Constraint("Horizontal", 11),
    Sketcher.Constraint("Vertical", 12),
    Sketcher.Constraint("Horizontal", 13),
    Sketcher.Constraint("Vertical", 14),
    Sketcher.Constraint("Horizontal", 15),
    Sketcher.Constraint("PointOnObject", 9, 2, -2),
    Sketcher.Constraint("Horizontal", 1, 2, 4, 2),
    Sketcher.Constraint("Horizontal", 5, 2, 8, 2),
    Sketcher.Constraint("Horizontal", 7, 2, 10, 2),
    Sketcher.Constraint("Horizontal", 9, 2, 12, 2),
    Sketcher.Constraint("Horizontal", 11, 2, 14, 2),
    Sketcher.Constraint("Equal", 1, 5),
    Sketcher.Constraint("Equal", 11, 13),
    Sketcher.Constraint("DistanceX", 3, 1, 3, 2, Q("30 mm")),
    Sketcher.Constraint("DistanceX", 7, 2, 7, 1, Q("57 mm")),
    Sketcher.Constraint("DistanceX", 9, 1, 9, 2, Q("8.5 mm")),
    Sketcher.Constraint("DistanceY", 0, 2, 0, 1, Q("32.5 mm")),
    Sketcher.Constraint("DistanceY", 2, 1, 2, 2, Q("12.5 mm")),
    Sketcher.Constraint("DistanceX", 1, 2, -1, 1, Q("55 mm")),
    Sketcher.Constraint("DistanceY", -1, 1, 2, 2, Q("15 mm")),
    Sketcher.Constraint("DistanceX", 12, 2, -1, 1, Q("80 mm")),
])
sketch10.setExpression("Constraints[40]", "Params.sketch10_width")
sketch10.setExpression("Constraints[41]", "Params.sketch10_width2")
sketch10.setExpression("Constraints[42]", "Params.sketch10_width3")
sketch10.setExpression("Constraints[43]", "Params.sketch10_height")
sketch10.setExpression("Constraints[44]", "Params.sketch10_height2")
pad6 = body.newObject("PartDesign::Pad", "Pad005")
pad6.Profile = sketch10
pad6.setExpression("Length", "Params.pad6_length")

# Sketch on XY plane
sketch11 = body.newObject("Sketcher::SketchObject", "Sketch010")
sketch11.AttachmentSupport = (doc.getObject("XY_Plane"), [""])
sketch11.MapMode = "FlatFace"
sketch11.AttachmentOffset = App.Placement(Vector(0, 0, 35), App.Rotation())
sketch11.addGeometry([
    Part.LineSegment(Vector(-20, 35, 0), Vector(-60, 35, 0)),
    Part.LineSegment(Vector(-60, 35, 0), Vector(-60, 2, 0)),
    Part.LineSegment(Vector(-60, 2, 0), Vector(-20, 2, 0)),
    Part.LineSegment(Vector(-20, 2, 0), Vector(-20, 35, 0)),
], False)
sketch11.addConstraint([
    Sketcher.Constraint("Coincident", 0, 2, 1, 1),
    Sketcher.Constraint("Coincident", 1, 2, 2, 1),
    Sketcher.Constraint("Coincident", 2, 2, 3, 1),
    Sketcher.Constraint("Coincident", 3, 2, 0, 1),
    Sketcher.Constraint("Horizontal", 0),
    Sketcher.Constraint("Vertical", 1),
    Sketcher.Constraint("Horizontal", 2),
    Sketcher.Constraint("Vertical", 3),
    Sketcher.Constraint("DistanceX", 2, 2, -1, 1, Q("20 mm")),
    Sketcher.Constraint("DistanceX", 0, 2, 0, 1, Q("40 mm")),
    Sketcher.Constraint("DistanceY", 1, 2, 1, 1, Q("32.5 mm")),
    Sketcher.Constraint("DistanceY", -1, 1, 0, 2, Q("35 mm")),
])
sketch11.setExpression("Constraints[9]", "Params.sketch11_width")
sketch11.setExpression("Constraints[10]", "Params.sketch11_height")
pocket5 = body.newObject("PartDesign::Pocket", "Pocket004")
pocket5.Profile = sketch11
pocket5.setExpression("Length", "Params.pocket5_length")

# Sketch on XZ plane
sketch12 = body.newObject("Sketcher::SketchObject", "Sketch011")
sketch12.AttachmentSupport = (doc.getObject("XZ_Plane"), [""])
sketch12.MapMode = "FlatFace"
sketch12.AttachmentOffset = App.Placement(Vector(0, 0, -15.5), App.Rotation())
sketch12.addGeometry([
    Part.LineSegment(Vector(-30, -21, 0), Vector(-23, -21, 0)),  # 0
    Part.LineSegment(Vector(-23, -21, 0), Vector(-23, -44, 0)),  # 1
    Part.LineSegment(Vector(-23, -44, 0), Vector(-57, -44, 0)),  # 2
    Part.LineSegment(Vector(-57, -44, 0), Vector(-57, -21, 0)),  # 3
    Part.LineSegment(Vector(-57, -21, 0), Vector(-50, -21, 0)),  # 4
    Part.LineSegment(Vector(-50, -21, 0), Vector(-50, -39, 0)),  # 5
    Part.LineSegment(Vector(-50, -39, 0), Vector(-30, -39, 0)),  # 6
    Part.LineSegment(Vector(-30, -39, 0), Vector(-30, -21, 0)),  # 7
], False)
sketch12.addConstraint([
    Sketcher.Constraint("Coincident", 0, 2, 1, 1),
    Sketcher.Constraint("Coincident", 1, 2, 2, 1),
    Sketcher.Constraint("Coincident", 2, 2, 3, 1),
    Sketcher.Constraint("Coincident", 3, 2, 4, 1),
    Sketcher.Constraint("Coincident", 4, 2, 5, 1),
    Sketcher.Constraint("Coincident", 5, 2, 6, 1),
    Sketcher.Constraint("Coincident", 6, 2, 7, 1),
    Sketcher.Constraint("Coincident", 7, 2, 0, 1),
    Sketcher.Constraint("Horizontal", 0),
    Sketcher.Constraint("Vertical", 1),
    Sketcher.Constraint("Horizontal", 2),
    Sketcher.Constraint("Vertical", 3),
    Sketcher.Constraint("Horizontal", 4),
    Sketcher.Constraint("Vertical", 5),
    Sketcher.Constraint("Horizontal", 6),
    Sketcher.Constraint("Vertical", 7),
    Sketcher.Constraint("Horizontal", 0, 2, 3, 2),
    Sketcher.Constraint("Equal", 0, 4),
    Sketcher.Constraint("DistanceX", 0, 1, 0, 2, Q("7 mm")),
    Sketcher.Constraint("DistanceX", 2, 2, 2, 1, Q("34 mm")),
    Sketcher.Constraint("DistanceY", 1, 2, 1, 1, Q("23 mm")),
    Sketcher.Constraint("DistanceY", 5, 2, 5, 1, Q("18 mm")),
    Sketcher.Constraint("DistanceX", 0, 2, -1, 1, Q("23 mm")),
    Sketcher.Constraint("DistanceY", 0, 2, -1, 1, Q("21 mm")),
])
sketch12.setExpression("Constraints[18]", "Params.sketch12_width")
sketch12.setExpression("Constraints[19]", "Params.sketch12_width2")
sketch12.setExpression("Constraints[20]", "Params.sketch12_height")
sketch12.setExpression("Constraints[21]", "Params.sketch12_height2")
pocket6 = body.newObject("PartDesign::Pocket", "Pocket005")
pocket6.Profile = sketch12
pocket6.setExpression("Length", "Params.pocket6_length")
pocket6.Reversed = True

doc.recompute()
